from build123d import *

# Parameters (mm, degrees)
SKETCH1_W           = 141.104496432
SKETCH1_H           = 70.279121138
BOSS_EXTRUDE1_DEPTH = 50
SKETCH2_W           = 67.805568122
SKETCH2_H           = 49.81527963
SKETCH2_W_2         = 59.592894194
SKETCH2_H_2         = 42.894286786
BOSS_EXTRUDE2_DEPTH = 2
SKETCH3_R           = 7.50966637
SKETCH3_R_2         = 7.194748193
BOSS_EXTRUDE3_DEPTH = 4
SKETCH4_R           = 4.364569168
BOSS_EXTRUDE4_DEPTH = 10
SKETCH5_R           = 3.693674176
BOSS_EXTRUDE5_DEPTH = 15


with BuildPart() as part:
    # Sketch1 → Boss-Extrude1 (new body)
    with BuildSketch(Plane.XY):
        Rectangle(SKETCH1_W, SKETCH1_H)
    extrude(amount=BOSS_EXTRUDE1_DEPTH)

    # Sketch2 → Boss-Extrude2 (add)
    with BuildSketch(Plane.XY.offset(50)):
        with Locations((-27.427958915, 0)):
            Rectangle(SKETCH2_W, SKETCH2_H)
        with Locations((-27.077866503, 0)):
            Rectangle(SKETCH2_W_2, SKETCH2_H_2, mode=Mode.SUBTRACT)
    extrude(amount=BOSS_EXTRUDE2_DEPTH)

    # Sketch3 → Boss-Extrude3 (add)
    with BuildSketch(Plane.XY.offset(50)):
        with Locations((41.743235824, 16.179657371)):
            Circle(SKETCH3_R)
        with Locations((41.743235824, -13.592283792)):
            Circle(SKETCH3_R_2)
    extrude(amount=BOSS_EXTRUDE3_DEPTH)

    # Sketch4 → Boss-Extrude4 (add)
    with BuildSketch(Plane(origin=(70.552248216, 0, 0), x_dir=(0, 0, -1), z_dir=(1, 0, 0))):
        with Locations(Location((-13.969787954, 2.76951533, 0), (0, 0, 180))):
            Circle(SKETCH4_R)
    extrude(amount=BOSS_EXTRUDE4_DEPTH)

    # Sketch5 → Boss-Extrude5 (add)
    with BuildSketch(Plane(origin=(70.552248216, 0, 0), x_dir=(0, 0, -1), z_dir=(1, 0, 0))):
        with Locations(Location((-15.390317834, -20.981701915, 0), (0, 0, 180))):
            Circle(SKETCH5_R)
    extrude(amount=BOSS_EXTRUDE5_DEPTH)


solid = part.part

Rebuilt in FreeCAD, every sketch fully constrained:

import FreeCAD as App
import Part
import Sketcher
from FreeCAD import Vector


def add_polygon(sketch, points):
    """Adds a closed chain of lines whose ends are joined by coincident constraints."""
    first, n = sketch.GeometryCount, len(points)
    for a, b in zip(points, points[1:] + points[:1]):
        sketch.addGeometry(Part.LineSegment(App.Vector(*a, 0), App.Vector(*b, 0)), False)
    for i in range(n):
        sketch.addConstraint(Sketcher.Constraint("Coincident", first + i, 2, first + (i + 1) % n, 1))

doc = App.newDocument("Part")
body = doc.addObject("PartDesign::Body", "Body")

# Sketch on XY plane
sketch1 = body.newObject("Sketcher::SketchObject", "Sketch")
sketch1.AttachmentSupport = (doc.getObject("XY_Plane"), [""])
sketch1.MapMode = "FlatFace"
add_polygon(sketch1, [(-71, 35), (-71, -35), (71, -35), (71, 35)])  # lines 0-3
sketch1.addConstraint(Sketcher.Constraint("Vertical", 0))
sketch1.addConstraint(Sketcher.Constraint("Horizontal", 1))
sketch1.addConstraint(Sketcher.Constraint("Vertical", 2))
sketch1.addConstraint(Sketcher.Constraint("Horizontal", 3))
sketch1.addConstraint(Sketcher.Constraint("Symmetric", 0, 2, 2, 2, -1, 1))
sketch1.addConstraint(Sketcher.Constraint("DistanceY", 0, 2, 0, 1, 70.279121))
sketch1.addConstraint(Sketcher.Constraint("DistanceX", 1, 1, 1, 2, 141.104496))
pad1 = body.newObject("PartDesign::Pad", "Pad")
pad1.Profile = sketch1
pad1.Length = 50

# Sketch on XY plane
sketch2 = body.newObject("Sketcher::SketchObject", "Sketch001")
sketch2.AttachmentSupport = (doc.getObject("XY_Plane"), [""])
sketch2.MapMode = "FlatFace"
sketch2.AttachmentOffset = App.Placement(Vector(0, 0, 50), App.Rotation())
add_polygon(sketch2, [(-61, 25), (-61, -25), (6, -25), (6, 25)])  # lines 0-3
add_polygon(sketch2, [(3, -21), (-57, -21), (-57, 21), (3, 21)])  # lines 4-7
sketch2.addConstraint(Sketcher.Constraint("Vertical", 0))
sketch2.addConstraint(Sketcher.Constraint("Horizontal", 1))
sketch2.addConstraint(Sketcher.Constraint("Vertical", 2))
sketch2.addConstraint(Sketcher.Constraint("Horizontal", 3))
sketch2.addConstraint(Sketcher.Constraint("Horizontal", 4))
sketch2.addConstraint(Sketcher.Constraint("Vertical", 5))
sketch2.addConstraint(Sketcher.Constraint("Horizontal", 6))
sketch2.addConstraint(Sketcher.Constraint("Vertical", 7))
sketch2.addConstraint(Sketcher.Constraint("DistanceX", 1, 1, 1, 2, 67.805568))
sketch2.addConstraint(Sketcher.Constraint("DistanceY", 0, 2, 0, 1, 49.81528))
sketch2.addConstraint(Sketcher.Constraint("DistanceX", 4, 2, 4, 1, 59.592894))
sketch2.addConstraint(Sketcher.Constraint("DistanceY", 5, 1, 5, 2, 42.894287))
sketch2.addConstraint(Sketcher.Constraint("DistanceY", 0, 2, -1, 1, 24.90764))
sketch2.addConstraint(Sketcher.Constraint("DistanceX", -1, 1, 6, 2, 2.718581))
sketch2.addConstraint(Sketcher.Constraint("DistanceX", 0, 2, 4, 2, 4.456429))
sketch2.addConstraint(Sketcher.Constraint("DistanceY", 4, 2, -1, 1, 21.447143))
pad2 = body.newObject("PartDesign::Pad", "Pad001")
pad2.Profile = sketch2
pad2.Length = 2

# Sketch on XY plane
sketch3 = body.newObject("Sketcher::SketchObject", "Sketch002")
sketch3.AttachmentSupport = (doc.getObject("XY_Plane"), [""])
sketch3.MapMode = "FlatFace"
sketch3.AttachmentOffset = App.Placement(Vector(0, 0, 50), App.Rotation())
sketch3.addGeometry(Part.Circle(Vector(42, 16, 0), Vector(0, 0, 1), 8), False)
sketch3.addGeometry(Part.Circle(Vector(42, -14, 0), Vector(0, 0, 1), 7), False)
sketch3.addConstraint(Sketcher.Constraint("Vertical", 0, 3, 1, 3))
sketch3.addConstraint(Sketcher.Constraint("Diameter", 0, 15.019333))
sketch3.addConstraint(Sketcher.Constraint("Diameter", 1, 14.389496))
sketch3.addConstraint(Sketcher.Constraint("DistanceY", 1, 3, 0, 3, 29.771941))
sketch3.addConstraint(Sketcher.Constraint("DistanceX", -1, 1, 0, 3, 41.743236))
sketch3.addConstraint(Sketcher.Constraint("DistanceY", -1, 1, 0, 3, 16.179657))
pad3 = body.newObject("PartDesign::Pad", "Pad002")
pad3.Profile = sketch3
pad3.Length = 4

# Sketch on YZ plane
sketch4 = body.newObject("Sketcher::SketchObject", "Sketch003")
sketch4.AttachmentSupport = (doc.getObject("YZ_Plane"), [""])
sketch4.MapMode = "FlatFace"
sketch4.AttachmentOffset = App.Placement(Vector(0, 0, 70.552248), App.Rotation())
sketch4.addGeometry(Part.Circle(Vector(2.8, 14, 0), Vector(0, 0, 1), 4.4), False)
sketch4.addConstraint(Sketcher.Constraint("Diameter", 0, 8.729138))
sketch4.addConstraint(Sketcher.Constraint("DistanceX", -1, 1, 0, 3, 2.769515))
sketch4.addConstraint(Sketcher.Constraint("DistanceY", -1, 1, 0, 3, 13.969788))
pad4 = body.newObject("PartDesign::Pad", "Pad003")
pad4.Profile = sketch4
pad4.Length = 10

# Sketch on YZ plane
sketch5 = body.newObject("Sketcher::SketchObject", "Sketch004")
sketch5.AttachmentSupport = (doc.getObject("YZ_Plane"), [""])
sketch5.MapMode = "FlatFace"
sketch5.AttachmentOffset = App.Placement(Vector(0, 0, 70.552248), App.Rotation())
sketch5.addGeometry(Part.Circle(Vector(-21, 15.4, 0), Vector(0, 0, 1), 3.7), False)
sketch5.addConstraint(Sketcher.Constraint("Diameter", 0, 7.387348))
sketch5.addConstraint(Sketcher.Constraint("DistanceX", 0, 3, -1, 1, 20.981702))
sketch5.addConstraint(Sketcher.Constraint("DistanceY", -1, 1, 0, 3, 15.390318))
pad5 = body.newObject("PartDesign::Pad", "Pad004")
pad5.Profile = sketch5
pad5.Length = 15

doc.recompute()
